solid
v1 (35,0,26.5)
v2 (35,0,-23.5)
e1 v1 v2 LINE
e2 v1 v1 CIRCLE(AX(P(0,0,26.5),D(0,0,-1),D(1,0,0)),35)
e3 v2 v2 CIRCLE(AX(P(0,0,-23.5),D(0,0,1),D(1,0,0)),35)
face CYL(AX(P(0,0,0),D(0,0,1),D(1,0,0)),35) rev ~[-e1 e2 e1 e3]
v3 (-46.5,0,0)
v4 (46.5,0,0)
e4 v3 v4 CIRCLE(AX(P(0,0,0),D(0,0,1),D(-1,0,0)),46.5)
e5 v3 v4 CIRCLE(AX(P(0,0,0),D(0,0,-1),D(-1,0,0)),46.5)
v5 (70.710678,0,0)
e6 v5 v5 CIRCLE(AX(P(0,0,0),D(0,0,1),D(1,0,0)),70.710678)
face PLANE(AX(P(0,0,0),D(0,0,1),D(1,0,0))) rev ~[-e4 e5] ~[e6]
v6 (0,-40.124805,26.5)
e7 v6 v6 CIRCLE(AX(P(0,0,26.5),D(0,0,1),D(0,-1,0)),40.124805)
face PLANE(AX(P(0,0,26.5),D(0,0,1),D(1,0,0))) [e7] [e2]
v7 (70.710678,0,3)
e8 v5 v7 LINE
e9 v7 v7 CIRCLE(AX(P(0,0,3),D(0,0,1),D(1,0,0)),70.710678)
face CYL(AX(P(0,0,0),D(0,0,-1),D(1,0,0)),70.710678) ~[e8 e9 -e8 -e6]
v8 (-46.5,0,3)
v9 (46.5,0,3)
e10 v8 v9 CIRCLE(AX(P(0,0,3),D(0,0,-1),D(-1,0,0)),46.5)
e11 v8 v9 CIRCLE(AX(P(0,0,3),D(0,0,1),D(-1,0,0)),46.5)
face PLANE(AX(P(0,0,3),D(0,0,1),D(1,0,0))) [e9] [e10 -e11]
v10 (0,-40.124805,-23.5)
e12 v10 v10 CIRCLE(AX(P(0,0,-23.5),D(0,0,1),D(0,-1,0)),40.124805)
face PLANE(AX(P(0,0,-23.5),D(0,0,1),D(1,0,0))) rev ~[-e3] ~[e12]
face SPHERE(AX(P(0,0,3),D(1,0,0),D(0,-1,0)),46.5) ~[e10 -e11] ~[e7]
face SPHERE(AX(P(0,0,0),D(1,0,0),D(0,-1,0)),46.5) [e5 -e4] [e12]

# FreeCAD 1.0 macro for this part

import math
import FreeCAD as App
import Part
import Sketcher

doc = App.newDocument("Part")
body = doc.addObject("PartDesign::Body", "Body")

# Sketch on XY plane
sketch1 = body.newObject("Sketcher::SketchObject", "Sketch")
sketch1.AttachmentSupport = (doc.getObject("XY_Plane"), [""])
sketch1.MapMode = "FlatFace"
sketch1.addGeometry(Part.ArcOfCircle(Part.Circle(App.Vector(0, 0, 0), App.Vector(0, 0, 1), 46), math.radians(180), math.radians(360)), False)
sketch1.addGeometry(Part.LineSegment(App.Vector(46, 0, 0), App.Vector(-46, 0, 0)), False)
sketch1.addConstraint(Sketcher.Constraint("Coincident", 0, 1, 1, 2))
sketch1.addConstraint(Sketcher.Constraint("Coincident", 1, 1, 0, 2))
sketch1.addConstraint(Sketcher.Constraint("Horizontal", 1))
sketch1.addConstraint(Sketcher.Constraint("Coincident", 0, 3, -1, 1))
sketch1.addConstraint(Sketcher.Constraint("PointOnObject", 0, 1, -1))
sketch1.addConstraint(Sketcher.Constraint("Radius", 0, 46.5))
revolution = body.newObject("PartDesign::Revolution", "Revolution")
revolution.Profile = sketch1
revolution.ReferenceAxis = (sketch1, ["H_Axis"])
revolution.Angle = 180

# Sketch on XY plane
sketch2 = body.newObject("Sketcher::SketchObject", "Sketch001")
sketch2.AttachmentSupport = (doc.getObject("XY_Plane"), [""])
sketch2.MapMode = "FlatFace"
sketch2.addGeometry(Part.Circle(App.Vector(0, 0, 0), App.Vector(0, 0, 1), 71), False)
sketch2.addConstraint(Sketcher.Constraint("Coincident", 0, 3, -1, 1))
sketch2.addConstraint(Sketcher.Constraint("Diameter", 0, 141.421356))
pad1 = body.newObject("PartDesign::Pad", "Pad")
pad1.Profile = sketch2
pad1.Length = 3

# Sketch on XY plane
sketch3 = body.newObject("Sketcher::SketchObject", "Sketch002")
sketch3.AttachmentSupport = (doc.getObject("XY_Plane"), [""])
sketch3.MapMode = "FlatFace"
sketch3.AttachmentOffset = App.Placement(App.Vector(0, 0, 3), App.Rotation())
sketch3.addGeometry(Part.LineSegment(App.Vector(46, 0, 0), App.Vector(-46, 0, 0)), False)
sketch3.addGeometry(Part.ArcOfCircle(Part.Circle(App.Vector(0, 0, 0), App.Vector(0, 0, 1), 46), math.radians(180), math.radians(360)), False)
sketch3.addConstraint(Sketcher.Constraint("Coincident", 0, 1, 1, 2))
sketch3.addConstraint(Sketcher.Constraint("Coincident", 1, 1, 0, 2))
sketch3.addConstraint(Sketcher.Constraint("Horizontal", 0))
sketch3.addConstraint(Sketcher.Constraint("Coincident", 1, 3, -1, 1))
sketch3.addConstraint(Sketcher.Constraint("PointOnObject", 0, 1, -1))
sketch3.addConstraint(Sketcher.Constraint("Radius", 1, 46.5))
revolution2 = body.newObject("PartDesign::Revolution", "Revolution001")
revolution2.Profile = sketch3
revolution2.ReferenceAxis = (sketch3, ["H_Axis"])
revolution2.Angle = 180
revolution2.Reversed = True

# Sketch on XY plane
sketch4 = body.newObject("Sketcher::SketchObject", "Sketch003")
sketch4.AttachmentSupport = (doc.getObject("XY_Plane"), [""])
sketch4.MapMode = "FlatFace"
sketch4.AttachmentOffset = App.Placement(App.Vector(0, 0, 26.5), App.Rotation())
sketch4.addGeometry(Part.LineSegment(App.Vector(-50, 50, 0), App.Vector(-50, -50, 0)), False)
sketch4.addGeometry(Part.LineSegment(App.Vector(-50, -50, 0), App.Vector(50, -50, 0)), False)
sketch4.addGeometry(Part.LineSegment(App.Vector(50, -50, 0), App.Vector(50, 50, 0)), False)
sketch4.addGeometry(Part.LineSegment(App.Vector(50, 50, 0), App.Vector(-50, 50, 0)), False)
sketch4.addConstraint(Sketcher.Constraint("Coincident", 0, 2, 1, 1))
sketch4.addConstraint(Sketcher.Constraint("Coincident", 1, 2, 2, 1))
sketch4.addConstraint(Sketcher.Constraint("Coincident", 2, 2, 3, 1))
sketch4.addConstraint(Sketcher.Constraint("Coincident", 3, 2, 0, 1))
sketch4.addConstraint(Sketcher.Constraint("Vertical", 0))
sketch4.addConstraint(Sketcher.Constraint("Horizontal", 1))
sketch4.addConstraint(Sketcher.Constraint("Vertical", 2))
sketch4.addConstraint(Sketcher.Constraint("Horizontal", 3))
sketch4.addConstraint(Sketcher.Constraint("Symmetric", 0, 2, 2, 2, -1, 1))
sketch4.addConstraint(Sketcher.Constraint("Equal", 3, 0))
sketch4.addConstraint(Sketcher.Constraint("DistanceX", 1, 1, 1, 2, 100.0))
pocket1 = body.newObject("PartDesign::Pocket", "Pocket")
pocket1.Profile = sketch4
pocket1.Length = 25
pocket1.Reversed = True

# Sketch on XY plane
sketch5 = body.newObject("Sketcher::SketchObject", "Sketch004")
sketch5.AttachmentSupport = (doc.getObject("XY_Plane"), [""])
sketch5.MapMode = "FlatFace"
sketch5.AttachmentOffset = App.Placement(App.Vector(0, 0, -23.5), App.Rotation())
sketch5.addGeometry(Part.LineSegment(App.Vector(-50, 50, 0), App.Vector(-50, -50, 0)), False)
sketch5.addGeometry(Part.LineSegment(App.Vector(-50, -50, 0), App.Vector(50, -50, 0)), False)
sketch5.addGeometry(Part.LineSegment(App.Vector(50, -50, 0), App.Vector(50, 50, 0)), False)
sketch5.addGeometry(Part.LineSegment(App.Vector(50, 50, 0), App.Vector(-50, 50, 0)), False)
sketch5.addConstraint(Sketcher.Constraint("Coincident", 0, 2, 1, 1))
sketch5.addConstraint(Sketcher.Constraint("Coincident", 1, 2, 2, 1))
sketch5.addConstraint(Sketcher.Constraint("Coincident", 2, 2, 3, 1))
sketch5.addConstraint(Sketcher.Constraint("Coincident", 3, 2, 0, 1))
sketch5.addConstraint(Sketcher.Constraint("Vertical", 0))
sketch5.addConstraint(Sketcher.Constraint("Horizontal", 1))
sketch5.addConstraint(Sketcher.Constraint("Vertical", 2))
sketch5.addConstraint(Sketcher.Constraint("Horizontal", 3))
sketch5.addConstraint(Sketcher.Constraint("Symmetric", 0, 2, 2, 2, -1, 1))
sketch5.addConstraint(Sketcher.Constraint("Equal", 3, 0))
sketch5.addConstraint(Sketcher.Constraint("DistanceX", 1, 1, 1, 2, 100.0))
pocket2 = body.newObject("PartDesign::Pocket", "Pocket001")
pocket2.Profile = sketch5
pocket2.Length = 25

# Sketch on XY plane
sketch6 = body.newObject("Sketcher::SketchObject", "Sketch005")
sketch6.AttachmentSupport = (doc.getObject("XY_Plane"), [""])
sketch6.MapMode = "FlatFace"
sketch6.addGeometry(Part.Circle(App.Vector(0, 0, 0), App.Vector(0, 0, 1), 35), False)
sketch6.addConstraint(Sketcher.Constraint("Coincident", 0, 3, -1, 1))
sketch6.addConstraint(Sketcher.Constraint("Diameter", 0, 70.0))
pocket3 = body.newObject("PartDesign::Pocket", "Pocket002")
pocket3.Profile = sketch6
pocket3.Type = "ThroughAll"
pocket3.Midplane = True

doc.recompute()
